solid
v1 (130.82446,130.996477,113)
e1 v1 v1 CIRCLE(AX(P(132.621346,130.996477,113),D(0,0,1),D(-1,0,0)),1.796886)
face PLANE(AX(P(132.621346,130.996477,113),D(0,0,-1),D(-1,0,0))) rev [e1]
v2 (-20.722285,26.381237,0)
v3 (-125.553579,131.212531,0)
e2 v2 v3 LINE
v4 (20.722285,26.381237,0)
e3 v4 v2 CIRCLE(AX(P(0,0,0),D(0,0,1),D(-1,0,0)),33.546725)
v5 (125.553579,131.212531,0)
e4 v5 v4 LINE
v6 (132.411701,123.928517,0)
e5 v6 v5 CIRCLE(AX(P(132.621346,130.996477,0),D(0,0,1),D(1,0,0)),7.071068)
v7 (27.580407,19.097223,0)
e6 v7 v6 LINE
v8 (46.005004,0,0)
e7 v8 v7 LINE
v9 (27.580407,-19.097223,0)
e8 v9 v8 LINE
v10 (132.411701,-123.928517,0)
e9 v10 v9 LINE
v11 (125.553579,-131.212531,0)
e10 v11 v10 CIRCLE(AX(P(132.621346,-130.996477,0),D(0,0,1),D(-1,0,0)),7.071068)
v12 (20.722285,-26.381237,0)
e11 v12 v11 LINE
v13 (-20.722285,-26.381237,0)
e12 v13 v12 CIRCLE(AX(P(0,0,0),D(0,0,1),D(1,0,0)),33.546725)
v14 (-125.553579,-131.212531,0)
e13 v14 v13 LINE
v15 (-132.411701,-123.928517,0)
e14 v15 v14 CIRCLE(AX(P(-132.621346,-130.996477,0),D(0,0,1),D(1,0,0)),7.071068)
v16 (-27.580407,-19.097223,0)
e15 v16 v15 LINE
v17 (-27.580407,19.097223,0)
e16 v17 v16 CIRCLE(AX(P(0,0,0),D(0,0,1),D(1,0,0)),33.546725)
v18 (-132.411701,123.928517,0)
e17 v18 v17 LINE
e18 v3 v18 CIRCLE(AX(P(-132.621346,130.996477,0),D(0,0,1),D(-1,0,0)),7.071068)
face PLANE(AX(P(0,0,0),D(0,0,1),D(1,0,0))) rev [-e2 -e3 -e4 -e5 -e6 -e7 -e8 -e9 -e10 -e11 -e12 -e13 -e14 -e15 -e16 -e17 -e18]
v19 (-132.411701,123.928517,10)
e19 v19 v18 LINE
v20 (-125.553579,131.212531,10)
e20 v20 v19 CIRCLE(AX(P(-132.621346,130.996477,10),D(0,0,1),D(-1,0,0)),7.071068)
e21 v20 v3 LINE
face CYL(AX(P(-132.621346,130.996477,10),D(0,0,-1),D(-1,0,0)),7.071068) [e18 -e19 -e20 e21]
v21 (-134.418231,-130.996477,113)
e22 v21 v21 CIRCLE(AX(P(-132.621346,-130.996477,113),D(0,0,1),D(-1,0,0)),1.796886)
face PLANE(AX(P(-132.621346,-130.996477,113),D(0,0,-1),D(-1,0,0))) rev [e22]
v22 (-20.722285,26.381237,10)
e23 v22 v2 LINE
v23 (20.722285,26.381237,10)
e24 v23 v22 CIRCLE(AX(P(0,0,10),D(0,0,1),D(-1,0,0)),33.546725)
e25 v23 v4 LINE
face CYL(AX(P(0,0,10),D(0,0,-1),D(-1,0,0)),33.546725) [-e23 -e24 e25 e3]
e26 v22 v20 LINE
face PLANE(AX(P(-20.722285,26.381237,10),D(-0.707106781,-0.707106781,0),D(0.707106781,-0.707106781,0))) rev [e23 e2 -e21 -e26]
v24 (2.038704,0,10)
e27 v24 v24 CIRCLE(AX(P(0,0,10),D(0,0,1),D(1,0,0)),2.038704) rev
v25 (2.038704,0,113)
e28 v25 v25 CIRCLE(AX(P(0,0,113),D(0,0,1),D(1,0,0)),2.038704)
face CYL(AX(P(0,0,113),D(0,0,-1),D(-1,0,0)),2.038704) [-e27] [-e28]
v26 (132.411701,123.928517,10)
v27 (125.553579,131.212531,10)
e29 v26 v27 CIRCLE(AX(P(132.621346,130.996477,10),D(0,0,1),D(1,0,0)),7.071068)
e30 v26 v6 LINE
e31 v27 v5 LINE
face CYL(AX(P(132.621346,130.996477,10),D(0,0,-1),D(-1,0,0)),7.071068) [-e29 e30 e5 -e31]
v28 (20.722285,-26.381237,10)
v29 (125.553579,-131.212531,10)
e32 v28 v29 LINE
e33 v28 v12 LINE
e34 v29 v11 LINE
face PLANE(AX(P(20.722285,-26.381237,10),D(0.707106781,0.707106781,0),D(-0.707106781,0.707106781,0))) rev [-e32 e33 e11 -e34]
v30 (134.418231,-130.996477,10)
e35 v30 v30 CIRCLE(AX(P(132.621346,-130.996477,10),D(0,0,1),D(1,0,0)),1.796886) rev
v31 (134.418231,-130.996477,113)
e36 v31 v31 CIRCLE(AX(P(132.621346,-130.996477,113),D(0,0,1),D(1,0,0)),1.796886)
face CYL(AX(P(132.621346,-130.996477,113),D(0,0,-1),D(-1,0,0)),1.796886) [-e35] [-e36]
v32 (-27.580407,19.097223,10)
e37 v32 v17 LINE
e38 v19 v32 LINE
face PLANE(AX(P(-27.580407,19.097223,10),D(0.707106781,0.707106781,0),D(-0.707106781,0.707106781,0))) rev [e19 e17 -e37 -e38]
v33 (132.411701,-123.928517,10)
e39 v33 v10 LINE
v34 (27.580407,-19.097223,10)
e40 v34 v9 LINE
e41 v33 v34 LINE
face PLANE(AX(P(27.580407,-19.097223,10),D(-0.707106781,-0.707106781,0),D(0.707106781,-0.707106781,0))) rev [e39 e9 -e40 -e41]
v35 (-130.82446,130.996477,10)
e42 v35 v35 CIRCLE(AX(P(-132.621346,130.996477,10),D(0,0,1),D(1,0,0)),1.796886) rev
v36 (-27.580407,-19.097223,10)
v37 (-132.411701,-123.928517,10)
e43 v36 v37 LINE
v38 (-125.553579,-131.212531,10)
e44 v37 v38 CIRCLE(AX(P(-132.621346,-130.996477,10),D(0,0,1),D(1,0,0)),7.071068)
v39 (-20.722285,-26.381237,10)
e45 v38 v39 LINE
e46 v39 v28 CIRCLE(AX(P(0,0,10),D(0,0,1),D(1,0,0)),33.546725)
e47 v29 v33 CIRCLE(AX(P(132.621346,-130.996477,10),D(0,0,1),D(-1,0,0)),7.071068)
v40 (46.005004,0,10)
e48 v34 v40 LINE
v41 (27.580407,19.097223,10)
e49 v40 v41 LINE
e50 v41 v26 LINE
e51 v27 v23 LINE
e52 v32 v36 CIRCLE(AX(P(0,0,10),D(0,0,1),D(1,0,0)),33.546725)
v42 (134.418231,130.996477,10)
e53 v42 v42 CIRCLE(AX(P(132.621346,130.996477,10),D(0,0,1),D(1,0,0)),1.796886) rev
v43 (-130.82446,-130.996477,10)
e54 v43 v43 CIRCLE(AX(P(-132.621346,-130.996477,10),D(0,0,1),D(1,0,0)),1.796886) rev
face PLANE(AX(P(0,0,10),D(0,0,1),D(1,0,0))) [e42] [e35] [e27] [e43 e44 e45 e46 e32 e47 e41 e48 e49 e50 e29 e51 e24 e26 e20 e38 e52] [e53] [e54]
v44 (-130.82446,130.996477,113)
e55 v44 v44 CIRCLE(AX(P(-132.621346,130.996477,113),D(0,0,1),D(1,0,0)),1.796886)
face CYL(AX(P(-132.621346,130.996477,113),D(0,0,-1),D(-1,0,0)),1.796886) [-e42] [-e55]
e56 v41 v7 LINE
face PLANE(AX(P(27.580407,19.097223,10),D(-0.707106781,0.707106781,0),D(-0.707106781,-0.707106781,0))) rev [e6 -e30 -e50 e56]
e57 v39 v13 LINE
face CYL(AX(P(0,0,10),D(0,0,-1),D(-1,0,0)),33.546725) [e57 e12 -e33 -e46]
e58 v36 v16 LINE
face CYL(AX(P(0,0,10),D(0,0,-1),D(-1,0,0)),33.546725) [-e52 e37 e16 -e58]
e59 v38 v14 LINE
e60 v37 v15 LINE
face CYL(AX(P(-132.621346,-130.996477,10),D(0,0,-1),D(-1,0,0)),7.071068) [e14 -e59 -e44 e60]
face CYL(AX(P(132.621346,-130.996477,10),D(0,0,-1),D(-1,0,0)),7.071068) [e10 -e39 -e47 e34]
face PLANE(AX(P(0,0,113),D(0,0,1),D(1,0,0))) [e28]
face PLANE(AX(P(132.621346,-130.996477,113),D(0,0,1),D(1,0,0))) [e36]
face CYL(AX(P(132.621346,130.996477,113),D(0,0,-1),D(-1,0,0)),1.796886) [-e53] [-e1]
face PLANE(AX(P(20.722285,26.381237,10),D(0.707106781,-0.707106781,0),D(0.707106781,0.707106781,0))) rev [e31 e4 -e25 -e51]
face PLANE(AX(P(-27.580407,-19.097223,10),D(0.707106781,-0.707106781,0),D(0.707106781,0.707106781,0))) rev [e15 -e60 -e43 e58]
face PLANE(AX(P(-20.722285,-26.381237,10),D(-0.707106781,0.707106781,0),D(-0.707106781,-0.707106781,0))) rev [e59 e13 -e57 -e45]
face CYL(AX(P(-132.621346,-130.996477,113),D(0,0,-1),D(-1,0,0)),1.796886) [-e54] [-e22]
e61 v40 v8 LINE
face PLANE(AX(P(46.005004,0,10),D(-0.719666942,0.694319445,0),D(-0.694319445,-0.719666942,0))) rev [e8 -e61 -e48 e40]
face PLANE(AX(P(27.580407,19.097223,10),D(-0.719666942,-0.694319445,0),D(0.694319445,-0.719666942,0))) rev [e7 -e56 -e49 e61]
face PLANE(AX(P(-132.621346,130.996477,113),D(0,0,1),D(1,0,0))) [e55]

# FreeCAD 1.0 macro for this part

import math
import FreeCAD as App
import Part
import Sketcher
from FreeCAD import Vector
Q = App.Units.Quantity

doc = App.newDocument("Part")
body = doc.addObject("PartDesign::Body", "Body")

# Sketch on XY plane
sketch1 = body.newObject("Sketcher::SketchObject", "Sketch")
sketch1.AttachmentSupport = (doc.getObject("XY_Plane"), [""])
sketch1.MapMode = "FlatFace"
sketch1.addGeometry([
    Part.LineSegment(Vector(-21, 26, 0), Vector(-126, 131, 0)),  # 0
    Part.ArcOfCircle(Part.Circle(Vector(-133, 131, 0), Vector(0, 0, 1), 7), math.radians(2), math.radians(272)),  # 1
    Part.LineSegment(Vector(-132, 124, 0), Vector(-28, 19, 0)),  # 2
    Part.ArcOfCircle(Part.Circle(Vector(0, 0, 0), Vector(0, 0, 1), 34), math.radians(145), math.radians(215)),  # 3
    Part.LineSegment(Vector(-28, -19, 0), Vector(-132, -124, 0)),  # 4
    Part.ArcOfCircle(Part.Circle(Vector(-133, -131, 0), Vector(0, 0, 1), 7), math.radians(88), math.radians(358)),  # 5
    Part.LineSegment(Vector(-126, -131, 0), Vector(-21, -26, 0)),  # 6
    Part.ArcOfCircle(Part.Circle(Vector(0, 0, 0), Vector(0, 0, 1), 34), math.radians(-128), math.radians(-52)),  # 7
    Part.LineSegment(Vector(21, -26, 0), Vector(126, -131, 0)),  # 8
    Part.ArcOfCircle(Part.Circle(Vector(133, -131, 0), Vector(0, 0, 1), 7), math.radians(-178), math.radians(92)),  # 9
    Part.LineSegment(Vector(132, -124, 0), Vector(28, -19, 0)),  # 10
    Part.LineSegment(Vector(28, -19, 0), Vector(46, 0, 0)),  # 11
    Part.LineSegment(Vector(46, 0, 0), Vector(28, 19, 0)),  # 12
    Part.LineSegment(Vector(28, 19, 0), Vector(132, 124, 0)),  # 13
    Part.ArcOfCircle(Part.Circle(Vector(133, 131, 0), Vector(0, 0, 1), 7), math.radians(-92), math.radians(178)),  # 14
    Part.LineSegment(Vector(126, 131, 0), Vector(21, 26, 0)),  # 15
    Part.ArcOfCircle(Part.Circle(Vector(0, 0, 0), Vector(0, 0, 1), 34), math.radians(52), math.radians(128)),  # 16
], False)
sketch1.addConstraint([
    Sketcher.Constraint("Coincident", 0, 2, 1, 1),
    Sketcher.Constraint("Coincident", 1, 2, 2, 1),
    Sketcher.Constraint("Coincident", 2, 2, 3, 1),
    Sketcher.Constraint("Coincident", 3, 2, 4, 1),
    Sketcher.Constraint("Coincident", 4, 2, 5, 1),
    Sketcher.Constraint("Coincident", 5, 2, 6, 1),
    Sketcher.Constraint("Coincident", 6, 2, 7, 1),
    Sketcher.Constraint("Coincident", 7, 2, 8, 1),
    Sketcher.Constraint("Coincident", 8, 2, 9, 1),
    Sketcher.Constraint("Coincident", 9, 2, 10, 1),
    Sketcher.Constraint("Coincident", 10, 2, 11, 1),
    Sketcher.Constraint("Coincident", 11, 2, 12, 1),
    Sketcher.Constraint("Coincident", 12, 2, 13, 1),
    Sketcher.Constraint("Coincident", 13, 2, 14, 1),
    Sketcher.Constraint("Coincident", 14, 2, 15, 1),
    Sketcher.Constraint("Coincident", 15, 2, 16, 1),
    Sketcher.Constraint("Coincident", 16, 2, 0, 1),
    Sketcher.Constraint("Coincident", 3, 3, -1, 1),
    Sketcher.Constraint("Coincident", 7, 3, -1, 1),
    Sketcher.Constraint("Coincident", 16, 3, -1, 1),
    Sketcher.Constraint("Equal", 1, 5),
    Sketcher.Constraint("Equal", 3, 7),
    Sketcher.Constraint("Equal", 5, 9),
    Sketcher.Constraint("Equal", 9, 14),
    Sketcher.Constraint("Equal", 7, 16),
    Sketcher.Constraint("Symmetric", 1, 3, 9, 3, -1, 1),
    Sketcher.Constraint("Symmetric", 5, 3, 14, 3, -1, 1),
    Sketcher.Constraint("Symmetric", 2, 2, 10, 2, -1, 1),
    Sketcher.Constraint("Symmetric", 3, 2, 12, 2, -1, 1),
    Sketcher.Constraint("Symmetric", 5, 3, 9, 3, -2),
    Sketcher.Constraint("PointOnObject", 11, 2, -1),
    Sketcher.Constraint("Parallel", 0, 2),
    Sketcher.Constraint("Perpendicular", 2, 4),
    Sketcher.Constraint("Parallel", 4, 6),
    Sketcher.Constraint("Perpendicular", 6, 8),
    Sketcher.Constraint("Parallel", 8, 10),
    Sketcher.Constraint("Perpendicular", 10, 13),
    Sketcher.Constraint("Parallel", 13, 15),
    Sketcher.Constraint("Horizontal", 6, 2, 7, 2),
    Sketcher.Constraint("Horizontal", 5, 2, 8, 2),
    Sketcher.Constraint("Horizontal", 4, 2, 9, 2),
    Sketcher.Constraint("Horizontal", 0, 2, 14, 2),
    Sketcher.Constraint("Vertical", 0, 2, 5, 2),
    Sketcher.Constraint("Equal", 0, 2),
    Sketcher.Constraint("Radius", 1, Q("7.071068 mm")),
    Sketcher.Constraint("Radius", 3, Q("33.546725 mm")),
    Sketcher.Constraint("DistanceX", 1, 2, -1, 1, Q("132.411701 mm")),
    Sketcher.Constraint("DistanceX", 0, 2, -1, 1, Q("125.553579 mm")),
    Sketcher.Constraint("DistanceY", -1, 1, 0, 2, Q("131.212531 mm")),
    Sketcher.Constraint("DistanceX", 7, 2, 11, 2, Q("25.282719 mm")),
])
pad1 = body.newObject("PartDesign::Pad", "Pad")
pad1.Profile = sketch1
pad1.Length = 10

# Sketch on XY plane
sketch2 = body.newObject("Sketcher::SketchObject", "Sketch001")
sketch2.AttachmentSupport = (doc.getObject("XY_Plane"), [""])
sketch2.MapMode = "FlatFace"
sketch2.addGeometry([
    Part.Circle(Vector(-132.6, 131, 0), Vector(0, 0, 1), 1.8),  # 0
    Part.Circle(Vector(132.6, 131, 0), Vector(0, 0, 1), 1.8),  # 1
    Part.Circle(Vector(132.6, -131, 0), Vector(0, 0, 1), 1.8),  # 2
    Part.Circle(Vector(-132.6, -131, 0), Vector(0, 0, 1), 1.8),  # 3
    Part.Circle(Vector(0, 0, 0), Vector(0, 0, 1), 2),  # 4
], False)
sketch2.addConstraint([
    Sketcher.Constraint("Coincident", 4, 3, -1, 1),
    Sketcher.Constraint("Equal", 0, 1),
    Sketcher.Constraint("Equal", 1, 2),
    Sketcher.Constraint("Equal", 2, 3),
    Sketcher.Constraint("Symmetric", 0, 3, 2, 3, -1, 1),
    Sketcher.Constraint("Symmetric", 1, 3, 3, 3, -1, 1),
    Sketcher.Constraint("Symmetric", 0, 3, 1, 3, -2),
    Sketcher.Constraint("Diameter", 0, Q("3.593771 mm")),
    Sketcher.Constraint("Diameter", 4, Q("4.077409 mm")),
    Sketcher.Constraint("DistanceX", 0, 3, 1, 3, Q("265.242691 mm")),
    Sketcher.Constraint("DistanceY", -1, 1, 0, 3, Q("130.996477 mm")),
])
pad2 = body.newObject("PartDesign::Pad", "Pad001")
pad2.Profile = sketch2
pad2.Length = 113

doc.recompute()
